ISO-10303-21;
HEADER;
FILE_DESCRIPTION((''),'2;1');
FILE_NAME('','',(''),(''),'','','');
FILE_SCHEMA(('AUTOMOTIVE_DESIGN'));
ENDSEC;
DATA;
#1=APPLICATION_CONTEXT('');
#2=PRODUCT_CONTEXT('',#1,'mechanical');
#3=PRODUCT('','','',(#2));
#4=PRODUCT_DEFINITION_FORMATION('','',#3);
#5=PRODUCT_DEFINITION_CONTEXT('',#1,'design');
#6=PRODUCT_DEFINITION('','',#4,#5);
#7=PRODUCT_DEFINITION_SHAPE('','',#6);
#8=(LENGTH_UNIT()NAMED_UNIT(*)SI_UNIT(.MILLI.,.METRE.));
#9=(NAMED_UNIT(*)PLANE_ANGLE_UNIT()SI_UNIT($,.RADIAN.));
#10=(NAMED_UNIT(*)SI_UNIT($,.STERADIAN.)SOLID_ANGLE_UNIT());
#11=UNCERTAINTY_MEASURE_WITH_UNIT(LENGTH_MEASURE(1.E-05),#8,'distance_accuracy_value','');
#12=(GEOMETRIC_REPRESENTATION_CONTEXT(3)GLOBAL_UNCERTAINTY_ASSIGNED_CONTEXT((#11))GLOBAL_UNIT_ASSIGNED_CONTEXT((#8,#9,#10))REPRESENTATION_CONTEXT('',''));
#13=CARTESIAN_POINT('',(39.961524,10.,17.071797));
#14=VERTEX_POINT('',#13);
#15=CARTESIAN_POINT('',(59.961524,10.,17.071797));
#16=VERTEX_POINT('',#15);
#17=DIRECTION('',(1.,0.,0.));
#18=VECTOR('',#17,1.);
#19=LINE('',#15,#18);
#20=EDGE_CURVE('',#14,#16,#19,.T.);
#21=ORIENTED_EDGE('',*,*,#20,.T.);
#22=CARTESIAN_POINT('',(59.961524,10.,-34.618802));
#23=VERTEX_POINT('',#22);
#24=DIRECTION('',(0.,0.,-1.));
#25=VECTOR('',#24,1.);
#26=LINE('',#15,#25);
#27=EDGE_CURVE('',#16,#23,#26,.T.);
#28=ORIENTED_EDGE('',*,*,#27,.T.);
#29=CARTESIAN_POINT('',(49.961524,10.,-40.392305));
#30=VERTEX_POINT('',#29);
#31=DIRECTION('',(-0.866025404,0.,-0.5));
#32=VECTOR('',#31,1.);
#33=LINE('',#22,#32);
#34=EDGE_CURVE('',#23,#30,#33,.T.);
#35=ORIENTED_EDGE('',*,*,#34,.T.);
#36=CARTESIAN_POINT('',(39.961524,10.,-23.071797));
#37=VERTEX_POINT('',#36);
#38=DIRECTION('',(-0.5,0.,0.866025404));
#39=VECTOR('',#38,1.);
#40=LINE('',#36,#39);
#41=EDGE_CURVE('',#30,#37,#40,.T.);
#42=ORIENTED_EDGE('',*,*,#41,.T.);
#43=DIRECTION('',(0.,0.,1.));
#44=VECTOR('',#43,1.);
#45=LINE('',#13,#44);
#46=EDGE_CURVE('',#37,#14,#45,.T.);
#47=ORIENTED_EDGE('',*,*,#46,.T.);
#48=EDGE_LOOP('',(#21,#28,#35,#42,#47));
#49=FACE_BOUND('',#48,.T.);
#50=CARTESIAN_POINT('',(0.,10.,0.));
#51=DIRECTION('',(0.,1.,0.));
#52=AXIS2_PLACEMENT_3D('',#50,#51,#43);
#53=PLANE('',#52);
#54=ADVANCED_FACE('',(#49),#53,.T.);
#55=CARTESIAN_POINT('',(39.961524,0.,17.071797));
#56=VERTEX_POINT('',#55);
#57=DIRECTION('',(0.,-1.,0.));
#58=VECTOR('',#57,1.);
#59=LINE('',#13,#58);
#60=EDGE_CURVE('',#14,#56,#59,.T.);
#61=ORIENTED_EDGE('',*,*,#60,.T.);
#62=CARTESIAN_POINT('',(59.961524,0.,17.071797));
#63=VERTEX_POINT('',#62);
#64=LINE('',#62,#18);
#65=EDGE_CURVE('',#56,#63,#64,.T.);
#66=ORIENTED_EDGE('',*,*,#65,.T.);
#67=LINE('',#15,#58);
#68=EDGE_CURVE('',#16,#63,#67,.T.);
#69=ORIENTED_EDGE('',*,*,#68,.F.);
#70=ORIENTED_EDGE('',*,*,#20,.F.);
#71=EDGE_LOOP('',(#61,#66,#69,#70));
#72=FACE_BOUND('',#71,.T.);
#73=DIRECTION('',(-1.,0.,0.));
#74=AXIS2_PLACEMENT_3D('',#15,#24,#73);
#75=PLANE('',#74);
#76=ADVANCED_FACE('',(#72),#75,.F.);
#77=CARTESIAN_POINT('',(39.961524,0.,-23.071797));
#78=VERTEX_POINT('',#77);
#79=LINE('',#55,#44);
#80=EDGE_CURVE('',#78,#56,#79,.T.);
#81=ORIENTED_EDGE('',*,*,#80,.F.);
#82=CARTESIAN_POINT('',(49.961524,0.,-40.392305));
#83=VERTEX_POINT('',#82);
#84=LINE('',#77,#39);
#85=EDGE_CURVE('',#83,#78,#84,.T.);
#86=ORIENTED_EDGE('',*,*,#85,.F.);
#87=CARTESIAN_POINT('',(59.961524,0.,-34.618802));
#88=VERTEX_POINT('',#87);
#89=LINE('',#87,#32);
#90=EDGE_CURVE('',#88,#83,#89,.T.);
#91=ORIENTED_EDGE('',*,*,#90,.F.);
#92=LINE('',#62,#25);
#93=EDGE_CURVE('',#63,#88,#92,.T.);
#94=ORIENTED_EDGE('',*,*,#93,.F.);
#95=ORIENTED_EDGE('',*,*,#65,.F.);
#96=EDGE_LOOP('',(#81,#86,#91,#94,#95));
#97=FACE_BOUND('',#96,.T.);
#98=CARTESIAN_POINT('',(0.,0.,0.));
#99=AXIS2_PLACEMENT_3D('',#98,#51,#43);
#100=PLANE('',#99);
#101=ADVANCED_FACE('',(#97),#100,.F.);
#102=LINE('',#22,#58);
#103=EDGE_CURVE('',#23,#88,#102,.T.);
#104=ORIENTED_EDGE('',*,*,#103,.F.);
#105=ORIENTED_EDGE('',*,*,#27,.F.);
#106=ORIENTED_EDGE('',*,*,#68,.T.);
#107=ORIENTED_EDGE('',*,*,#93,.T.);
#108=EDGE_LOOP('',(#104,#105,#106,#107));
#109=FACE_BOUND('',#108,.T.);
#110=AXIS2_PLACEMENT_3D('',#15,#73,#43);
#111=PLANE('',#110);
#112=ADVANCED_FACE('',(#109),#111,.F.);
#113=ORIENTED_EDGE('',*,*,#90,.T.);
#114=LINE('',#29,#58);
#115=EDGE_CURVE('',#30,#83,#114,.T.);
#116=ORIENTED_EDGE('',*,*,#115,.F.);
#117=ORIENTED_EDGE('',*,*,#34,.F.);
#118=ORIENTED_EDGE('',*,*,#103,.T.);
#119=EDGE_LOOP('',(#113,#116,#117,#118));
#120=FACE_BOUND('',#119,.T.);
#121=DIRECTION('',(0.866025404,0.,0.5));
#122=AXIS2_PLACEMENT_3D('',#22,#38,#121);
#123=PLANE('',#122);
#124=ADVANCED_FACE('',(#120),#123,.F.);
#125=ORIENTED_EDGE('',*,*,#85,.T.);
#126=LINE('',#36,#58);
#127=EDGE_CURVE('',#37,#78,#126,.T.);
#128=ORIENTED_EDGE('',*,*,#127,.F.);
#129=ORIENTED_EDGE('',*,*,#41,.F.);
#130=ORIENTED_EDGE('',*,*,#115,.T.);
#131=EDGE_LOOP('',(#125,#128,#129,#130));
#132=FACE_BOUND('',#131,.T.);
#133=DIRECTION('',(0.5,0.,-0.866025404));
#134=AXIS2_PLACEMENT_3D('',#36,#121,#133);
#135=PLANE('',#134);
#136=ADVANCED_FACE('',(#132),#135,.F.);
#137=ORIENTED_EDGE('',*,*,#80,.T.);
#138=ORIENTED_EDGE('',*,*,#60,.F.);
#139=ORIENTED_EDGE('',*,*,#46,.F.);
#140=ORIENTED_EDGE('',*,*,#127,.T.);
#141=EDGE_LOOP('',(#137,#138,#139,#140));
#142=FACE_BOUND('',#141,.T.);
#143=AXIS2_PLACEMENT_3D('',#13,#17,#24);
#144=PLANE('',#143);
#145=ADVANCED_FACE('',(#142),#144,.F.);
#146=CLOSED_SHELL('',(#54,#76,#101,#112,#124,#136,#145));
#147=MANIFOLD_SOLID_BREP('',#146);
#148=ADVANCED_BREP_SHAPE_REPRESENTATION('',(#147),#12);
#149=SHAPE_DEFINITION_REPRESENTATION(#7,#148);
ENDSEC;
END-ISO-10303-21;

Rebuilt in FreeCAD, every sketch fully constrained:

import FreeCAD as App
import Part
import Sketcher
from FreeCAD import Vector
Q = App.Units.Quantity

doc = App.newDocument("Part")
body = doc.addObject("PartDesign::Body", "Body")

# Sketch on XZ plane
sketch1 = doc.addObject("Sketcher::SketchObject", "Sketch")
body.addObject(sketch1)
sketch1.AttachmentSupport = (doc.XZ_Plane, [""])
sketch1.MapMode = "FlatFace"
sketch1.addGeometry(Part.LineSegment(Vector(40, 17, 0), Vector(60, 17, 0)), False)
sketch1.addGeometry(Part.LineSegment(Vector(60, 17, 0), Vector(60, -35, 0)), False)
sketch1.addGeometry(Part.LineSegment(Vector(60, -35, 0), Vector(50, -40, 0)), False)
sketch1.addGeometry(Part.LineSegment(Vector(50, -40, 0), Vector(40, -23, 0)), False)
sketch1.addGeometry(Part.LineSegment(Vector(40, -23, 0), Vector(40, 17, 0)), False)
sketch1.addConstraint(Sketcher.Constraint("Coincident", 0, 2, 1, 1))
sketch1.addConstraint(Sketcher.Constraint("Coincident", 1, 2, 2, 1))
sketch1.addConstraint(Sketcher.Constraint("Coincident", 2, 2, 3, 1))
sketch1.addConstraint(Sketcher.Constraint("Coincident", 3, 2, 4, 1))
sketch1.addConstraint(Sketcher.Constraint("Coincident", 4, 2, 0, 1))
sketch1.addConstraint(Sketcher.Constraint("Horizontal", 0))
sketch1.addConstraint(Sketcher.Constraint("Vertical", 1))
sketch1.addConstraint(Sketcher.Constraint("Vertical", 4))
sketch1.addConstraint(Sketcher.Constraint("Perpendicular", 2, 3))
sketch1.addConstraint(Sketcher.Constraint("DistanceX", 0, 1, 0, 2, Q("20 mm")))
sketch1.addConstraint(Sketcher.Constraint("Angle", 2, Q("-150 deg")))
sketch1.addConstraint(Sketcher.Constraint("Distance", 3, Q("20 mm")))
sketch1.addConstraint(Sketcher.Constraint("DistanceY", 1, 2, 1, 1, Q("51.690599 mm")))
sketch1.addConstraint(Sketcher.Constraint("DistanceX", -1, 1, 0, 2, Q("59.961524 mm")))
sketch1.addConstraint(Sketcher.Constraint("DistanceY", -1, 1, 0, 2, Q("17.071797 mm")))
pad1 = doc.addObject("PartDesign::Pad", "Pad")
body.addObject(pad1)
pad1.Profile = sketch1
pad1.Length = 10
pad1.Reversed = True

doc.recompute()
